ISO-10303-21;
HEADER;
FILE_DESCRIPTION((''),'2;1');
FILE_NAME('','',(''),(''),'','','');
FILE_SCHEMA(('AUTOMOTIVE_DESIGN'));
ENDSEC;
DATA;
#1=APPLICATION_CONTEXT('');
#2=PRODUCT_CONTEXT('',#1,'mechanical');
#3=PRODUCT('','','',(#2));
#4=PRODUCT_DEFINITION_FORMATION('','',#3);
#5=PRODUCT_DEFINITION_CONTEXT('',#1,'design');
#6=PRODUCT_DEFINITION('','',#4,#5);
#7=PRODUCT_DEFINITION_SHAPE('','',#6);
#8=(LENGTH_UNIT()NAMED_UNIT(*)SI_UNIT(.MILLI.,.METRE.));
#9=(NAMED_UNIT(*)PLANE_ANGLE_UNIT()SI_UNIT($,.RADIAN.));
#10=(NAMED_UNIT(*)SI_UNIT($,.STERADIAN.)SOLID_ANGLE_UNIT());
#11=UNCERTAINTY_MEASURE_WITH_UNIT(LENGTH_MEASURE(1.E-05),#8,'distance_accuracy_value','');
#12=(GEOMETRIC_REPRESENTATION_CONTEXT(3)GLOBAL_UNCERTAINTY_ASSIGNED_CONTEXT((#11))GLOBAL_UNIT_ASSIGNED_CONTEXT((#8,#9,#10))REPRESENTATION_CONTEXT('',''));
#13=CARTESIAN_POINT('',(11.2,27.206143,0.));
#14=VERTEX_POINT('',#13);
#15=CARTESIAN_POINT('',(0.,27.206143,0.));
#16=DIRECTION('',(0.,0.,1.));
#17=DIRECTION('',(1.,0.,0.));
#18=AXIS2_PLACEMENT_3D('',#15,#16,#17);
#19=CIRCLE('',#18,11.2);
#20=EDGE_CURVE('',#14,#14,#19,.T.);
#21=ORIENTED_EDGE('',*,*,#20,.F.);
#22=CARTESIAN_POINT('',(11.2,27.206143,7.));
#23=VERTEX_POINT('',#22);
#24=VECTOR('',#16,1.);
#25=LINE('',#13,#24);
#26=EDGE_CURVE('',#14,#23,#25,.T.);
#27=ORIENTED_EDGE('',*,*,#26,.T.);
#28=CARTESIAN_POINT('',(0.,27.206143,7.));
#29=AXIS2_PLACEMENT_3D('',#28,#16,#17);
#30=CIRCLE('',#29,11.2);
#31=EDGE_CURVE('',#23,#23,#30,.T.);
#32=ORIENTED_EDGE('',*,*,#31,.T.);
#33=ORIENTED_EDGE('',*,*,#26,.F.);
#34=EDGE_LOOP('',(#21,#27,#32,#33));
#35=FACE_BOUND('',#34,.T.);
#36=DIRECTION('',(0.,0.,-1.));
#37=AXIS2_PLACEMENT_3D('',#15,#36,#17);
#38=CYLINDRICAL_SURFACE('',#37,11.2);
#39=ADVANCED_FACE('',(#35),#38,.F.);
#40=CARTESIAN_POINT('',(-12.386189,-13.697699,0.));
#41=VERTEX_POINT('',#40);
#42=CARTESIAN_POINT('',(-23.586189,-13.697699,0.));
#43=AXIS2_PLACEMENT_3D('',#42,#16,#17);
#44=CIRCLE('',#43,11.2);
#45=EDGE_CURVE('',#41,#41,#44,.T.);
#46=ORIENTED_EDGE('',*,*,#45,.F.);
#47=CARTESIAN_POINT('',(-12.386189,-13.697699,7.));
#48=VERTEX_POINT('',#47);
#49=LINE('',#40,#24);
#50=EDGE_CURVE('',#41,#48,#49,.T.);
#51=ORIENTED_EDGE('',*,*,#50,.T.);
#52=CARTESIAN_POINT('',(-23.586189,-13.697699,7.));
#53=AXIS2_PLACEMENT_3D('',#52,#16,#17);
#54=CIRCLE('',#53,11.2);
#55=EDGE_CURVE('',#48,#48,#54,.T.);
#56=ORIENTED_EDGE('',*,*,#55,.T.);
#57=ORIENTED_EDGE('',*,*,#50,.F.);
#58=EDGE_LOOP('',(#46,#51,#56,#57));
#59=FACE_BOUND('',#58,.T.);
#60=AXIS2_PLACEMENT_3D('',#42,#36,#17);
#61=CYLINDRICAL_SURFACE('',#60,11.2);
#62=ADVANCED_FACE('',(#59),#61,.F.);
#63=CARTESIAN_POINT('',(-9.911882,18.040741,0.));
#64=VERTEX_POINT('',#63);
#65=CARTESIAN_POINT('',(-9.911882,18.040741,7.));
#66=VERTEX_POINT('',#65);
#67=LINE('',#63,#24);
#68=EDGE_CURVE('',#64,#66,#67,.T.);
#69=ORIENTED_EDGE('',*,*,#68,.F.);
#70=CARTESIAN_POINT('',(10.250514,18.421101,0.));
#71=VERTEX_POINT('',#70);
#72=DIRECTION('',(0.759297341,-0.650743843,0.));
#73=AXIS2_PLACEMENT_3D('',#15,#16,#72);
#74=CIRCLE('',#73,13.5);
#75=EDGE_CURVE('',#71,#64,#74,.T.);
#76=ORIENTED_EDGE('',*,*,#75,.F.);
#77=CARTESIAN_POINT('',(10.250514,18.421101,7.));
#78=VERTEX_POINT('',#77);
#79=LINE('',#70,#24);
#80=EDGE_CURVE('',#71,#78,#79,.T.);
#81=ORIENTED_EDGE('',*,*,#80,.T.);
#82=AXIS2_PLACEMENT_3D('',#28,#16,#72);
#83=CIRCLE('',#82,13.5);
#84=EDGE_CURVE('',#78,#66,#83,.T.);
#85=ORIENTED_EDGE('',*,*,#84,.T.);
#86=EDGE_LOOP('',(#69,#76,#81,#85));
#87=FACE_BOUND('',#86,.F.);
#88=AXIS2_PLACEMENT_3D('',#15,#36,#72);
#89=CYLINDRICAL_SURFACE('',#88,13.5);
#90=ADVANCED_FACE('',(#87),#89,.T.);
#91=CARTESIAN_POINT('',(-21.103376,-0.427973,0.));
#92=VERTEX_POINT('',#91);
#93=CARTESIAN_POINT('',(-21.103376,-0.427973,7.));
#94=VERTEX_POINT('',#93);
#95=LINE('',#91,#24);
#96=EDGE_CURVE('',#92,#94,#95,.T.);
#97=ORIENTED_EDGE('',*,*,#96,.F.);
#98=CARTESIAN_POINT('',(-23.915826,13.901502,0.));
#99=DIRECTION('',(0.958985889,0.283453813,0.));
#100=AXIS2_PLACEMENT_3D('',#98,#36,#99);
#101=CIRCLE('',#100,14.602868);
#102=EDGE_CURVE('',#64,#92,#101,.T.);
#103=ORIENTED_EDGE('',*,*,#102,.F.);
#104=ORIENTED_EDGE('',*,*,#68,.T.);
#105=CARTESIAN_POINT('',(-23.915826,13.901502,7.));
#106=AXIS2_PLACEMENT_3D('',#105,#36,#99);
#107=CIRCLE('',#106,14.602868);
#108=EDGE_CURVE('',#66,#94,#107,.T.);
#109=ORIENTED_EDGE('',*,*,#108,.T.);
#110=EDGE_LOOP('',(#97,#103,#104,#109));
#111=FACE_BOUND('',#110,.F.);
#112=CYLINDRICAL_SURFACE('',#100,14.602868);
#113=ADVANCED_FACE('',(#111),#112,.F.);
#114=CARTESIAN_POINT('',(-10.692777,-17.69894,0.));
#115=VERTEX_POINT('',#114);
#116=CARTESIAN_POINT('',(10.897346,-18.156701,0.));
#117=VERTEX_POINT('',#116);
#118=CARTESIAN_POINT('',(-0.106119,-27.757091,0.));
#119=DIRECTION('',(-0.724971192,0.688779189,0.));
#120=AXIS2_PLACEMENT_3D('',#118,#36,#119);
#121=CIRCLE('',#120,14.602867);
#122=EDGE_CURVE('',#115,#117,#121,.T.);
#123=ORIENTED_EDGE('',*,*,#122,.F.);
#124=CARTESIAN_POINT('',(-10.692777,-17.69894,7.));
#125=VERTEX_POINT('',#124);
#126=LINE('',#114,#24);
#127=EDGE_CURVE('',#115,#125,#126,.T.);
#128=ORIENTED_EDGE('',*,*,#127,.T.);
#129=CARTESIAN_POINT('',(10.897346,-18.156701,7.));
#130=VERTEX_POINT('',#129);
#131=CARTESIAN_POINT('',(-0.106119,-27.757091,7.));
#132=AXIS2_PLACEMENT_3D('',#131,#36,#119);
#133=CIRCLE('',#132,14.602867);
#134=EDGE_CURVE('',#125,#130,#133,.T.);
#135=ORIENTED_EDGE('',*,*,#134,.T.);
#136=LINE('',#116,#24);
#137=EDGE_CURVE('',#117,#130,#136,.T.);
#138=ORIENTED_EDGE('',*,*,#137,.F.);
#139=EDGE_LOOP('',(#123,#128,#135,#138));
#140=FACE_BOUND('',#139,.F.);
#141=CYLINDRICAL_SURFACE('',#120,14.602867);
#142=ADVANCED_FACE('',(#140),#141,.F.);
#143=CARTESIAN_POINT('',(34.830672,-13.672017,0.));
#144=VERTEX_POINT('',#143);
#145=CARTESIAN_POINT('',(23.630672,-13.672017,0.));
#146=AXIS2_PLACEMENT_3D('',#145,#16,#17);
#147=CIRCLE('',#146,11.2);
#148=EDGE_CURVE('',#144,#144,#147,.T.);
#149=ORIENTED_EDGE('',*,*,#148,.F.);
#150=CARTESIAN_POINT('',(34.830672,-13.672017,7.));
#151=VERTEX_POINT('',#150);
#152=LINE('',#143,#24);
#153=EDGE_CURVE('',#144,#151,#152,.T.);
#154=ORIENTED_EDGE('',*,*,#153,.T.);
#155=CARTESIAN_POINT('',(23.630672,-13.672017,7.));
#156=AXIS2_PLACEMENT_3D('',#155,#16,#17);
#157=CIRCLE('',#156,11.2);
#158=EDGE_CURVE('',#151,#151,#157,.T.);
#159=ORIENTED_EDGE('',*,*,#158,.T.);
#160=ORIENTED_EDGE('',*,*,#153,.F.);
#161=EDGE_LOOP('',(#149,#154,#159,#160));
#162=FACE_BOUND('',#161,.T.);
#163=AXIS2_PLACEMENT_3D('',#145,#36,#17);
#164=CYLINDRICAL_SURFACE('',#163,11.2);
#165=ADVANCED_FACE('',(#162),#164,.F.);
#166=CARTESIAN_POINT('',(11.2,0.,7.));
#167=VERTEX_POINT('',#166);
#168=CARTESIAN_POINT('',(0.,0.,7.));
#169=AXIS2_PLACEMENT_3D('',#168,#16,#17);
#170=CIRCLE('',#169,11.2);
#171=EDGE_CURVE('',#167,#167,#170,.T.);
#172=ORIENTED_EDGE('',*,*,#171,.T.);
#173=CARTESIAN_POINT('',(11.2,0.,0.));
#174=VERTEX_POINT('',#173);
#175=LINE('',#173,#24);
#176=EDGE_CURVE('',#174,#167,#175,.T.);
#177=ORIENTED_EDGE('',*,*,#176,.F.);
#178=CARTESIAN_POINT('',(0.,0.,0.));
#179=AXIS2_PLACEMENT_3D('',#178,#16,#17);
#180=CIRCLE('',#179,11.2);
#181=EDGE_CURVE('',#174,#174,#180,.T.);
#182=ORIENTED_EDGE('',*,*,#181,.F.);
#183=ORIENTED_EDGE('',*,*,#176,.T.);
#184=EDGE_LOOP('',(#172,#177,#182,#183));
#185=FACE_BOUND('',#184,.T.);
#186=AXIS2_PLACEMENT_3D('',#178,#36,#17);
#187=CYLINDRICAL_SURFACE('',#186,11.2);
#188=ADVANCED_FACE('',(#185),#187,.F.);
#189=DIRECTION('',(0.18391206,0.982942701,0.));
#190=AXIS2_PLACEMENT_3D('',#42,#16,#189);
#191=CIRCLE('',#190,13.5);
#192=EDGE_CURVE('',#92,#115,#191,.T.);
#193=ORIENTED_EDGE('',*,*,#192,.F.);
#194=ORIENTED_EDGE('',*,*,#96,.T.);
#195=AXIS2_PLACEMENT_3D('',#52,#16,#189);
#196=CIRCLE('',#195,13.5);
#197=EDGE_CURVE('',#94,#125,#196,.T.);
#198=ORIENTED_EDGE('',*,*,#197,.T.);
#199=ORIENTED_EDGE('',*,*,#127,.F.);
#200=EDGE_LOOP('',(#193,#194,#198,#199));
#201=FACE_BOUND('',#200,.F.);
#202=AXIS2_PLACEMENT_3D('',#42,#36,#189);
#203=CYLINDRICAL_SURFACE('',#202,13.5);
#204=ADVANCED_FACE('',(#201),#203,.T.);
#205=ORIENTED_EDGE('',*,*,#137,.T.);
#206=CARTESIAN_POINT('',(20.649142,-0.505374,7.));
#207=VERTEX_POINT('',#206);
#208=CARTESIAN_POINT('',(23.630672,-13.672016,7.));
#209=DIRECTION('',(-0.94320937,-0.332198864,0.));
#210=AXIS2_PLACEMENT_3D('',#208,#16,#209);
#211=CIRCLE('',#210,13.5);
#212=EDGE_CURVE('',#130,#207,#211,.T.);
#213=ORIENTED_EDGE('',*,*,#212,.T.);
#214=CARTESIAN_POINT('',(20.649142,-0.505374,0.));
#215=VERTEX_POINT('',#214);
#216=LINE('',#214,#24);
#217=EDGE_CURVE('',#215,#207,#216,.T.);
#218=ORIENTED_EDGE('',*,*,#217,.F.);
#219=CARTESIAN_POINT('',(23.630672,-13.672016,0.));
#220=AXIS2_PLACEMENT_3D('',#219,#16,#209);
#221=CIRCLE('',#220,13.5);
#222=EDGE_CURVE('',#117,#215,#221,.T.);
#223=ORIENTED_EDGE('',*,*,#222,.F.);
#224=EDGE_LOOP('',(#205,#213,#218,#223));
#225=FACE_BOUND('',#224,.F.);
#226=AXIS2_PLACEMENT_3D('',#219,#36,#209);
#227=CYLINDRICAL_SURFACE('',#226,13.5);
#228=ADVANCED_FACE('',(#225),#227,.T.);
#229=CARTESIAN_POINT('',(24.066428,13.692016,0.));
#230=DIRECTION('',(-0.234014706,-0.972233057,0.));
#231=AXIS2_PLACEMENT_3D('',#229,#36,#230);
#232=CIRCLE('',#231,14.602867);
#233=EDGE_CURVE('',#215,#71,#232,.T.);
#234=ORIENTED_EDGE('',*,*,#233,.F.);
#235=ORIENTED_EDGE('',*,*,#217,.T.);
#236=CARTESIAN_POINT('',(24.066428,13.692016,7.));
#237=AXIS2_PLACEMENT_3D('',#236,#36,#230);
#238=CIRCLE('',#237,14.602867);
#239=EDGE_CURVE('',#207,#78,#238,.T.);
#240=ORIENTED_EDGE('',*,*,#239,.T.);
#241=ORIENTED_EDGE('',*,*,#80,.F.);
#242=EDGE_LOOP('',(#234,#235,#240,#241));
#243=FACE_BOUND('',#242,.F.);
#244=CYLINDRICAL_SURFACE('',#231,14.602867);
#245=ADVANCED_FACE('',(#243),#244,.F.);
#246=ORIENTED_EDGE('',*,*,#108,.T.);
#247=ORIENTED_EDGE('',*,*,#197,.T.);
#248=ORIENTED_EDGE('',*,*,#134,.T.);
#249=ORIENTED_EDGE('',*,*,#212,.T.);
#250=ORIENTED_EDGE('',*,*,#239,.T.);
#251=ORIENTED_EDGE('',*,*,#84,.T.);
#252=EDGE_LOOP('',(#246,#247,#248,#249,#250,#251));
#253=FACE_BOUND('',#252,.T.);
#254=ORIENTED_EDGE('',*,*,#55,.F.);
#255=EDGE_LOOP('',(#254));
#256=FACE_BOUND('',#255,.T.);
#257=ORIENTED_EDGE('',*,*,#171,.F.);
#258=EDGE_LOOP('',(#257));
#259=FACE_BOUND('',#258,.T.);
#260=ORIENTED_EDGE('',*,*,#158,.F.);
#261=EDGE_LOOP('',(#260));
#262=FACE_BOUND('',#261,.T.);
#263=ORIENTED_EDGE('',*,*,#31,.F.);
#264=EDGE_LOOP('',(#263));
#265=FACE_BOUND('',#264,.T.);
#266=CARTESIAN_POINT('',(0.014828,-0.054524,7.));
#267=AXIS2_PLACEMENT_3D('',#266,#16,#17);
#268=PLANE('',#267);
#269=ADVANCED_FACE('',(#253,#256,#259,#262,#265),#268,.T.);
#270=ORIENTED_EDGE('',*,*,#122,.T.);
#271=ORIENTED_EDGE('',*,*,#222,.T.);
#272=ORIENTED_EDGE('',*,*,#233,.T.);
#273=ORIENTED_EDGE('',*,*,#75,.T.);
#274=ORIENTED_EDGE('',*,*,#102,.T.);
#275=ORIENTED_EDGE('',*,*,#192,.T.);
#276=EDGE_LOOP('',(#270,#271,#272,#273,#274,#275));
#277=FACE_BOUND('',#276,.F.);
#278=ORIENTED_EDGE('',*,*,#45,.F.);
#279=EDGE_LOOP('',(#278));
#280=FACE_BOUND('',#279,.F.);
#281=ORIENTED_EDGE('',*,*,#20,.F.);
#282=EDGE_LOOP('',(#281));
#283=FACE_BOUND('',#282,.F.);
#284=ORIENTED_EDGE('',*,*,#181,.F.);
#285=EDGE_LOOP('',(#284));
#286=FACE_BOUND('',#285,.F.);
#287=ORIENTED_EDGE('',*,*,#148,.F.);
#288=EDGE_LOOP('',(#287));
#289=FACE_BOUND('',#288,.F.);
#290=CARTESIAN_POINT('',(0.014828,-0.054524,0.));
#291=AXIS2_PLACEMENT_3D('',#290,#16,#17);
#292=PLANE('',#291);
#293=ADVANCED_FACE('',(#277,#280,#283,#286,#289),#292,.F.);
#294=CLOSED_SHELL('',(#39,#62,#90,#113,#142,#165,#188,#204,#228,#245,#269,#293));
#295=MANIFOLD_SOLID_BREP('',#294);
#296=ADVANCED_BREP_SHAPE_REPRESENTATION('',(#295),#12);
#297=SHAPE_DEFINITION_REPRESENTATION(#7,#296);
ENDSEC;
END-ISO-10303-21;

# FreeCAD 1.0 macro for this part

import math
import FreeCAD as App
import Part
import Sketcher
Q = App.Units.Quantity

doc = App.newDocument("Part")
body = doc.addObject("PartDesign::Body", "Body")

# Sketch on XY plane
sketch1 = body.newObject("Sketcher::SketchObject", "Sketch")
sketch1.AttachmentSupport = (doc.getObject("XY_Plane"), [""])
sketch1.MapMode = "FlatFace"
sketch1.addGeometry([
    Part.ArcOfCircle(Part.Circle(App.Vector(24, 14, 0), App.Vector(0, 0, 1), 15), math.radians(161), math.radians(256)),  # 0
    Part.ArcOfCircle(Part.Circle(App.Vector(0, 27, 0), App.Vector(0, 0, 1), 13), math.radians(-41), math.radians(223)),  # 1
    Part.ArcOfCircle(Part.Circle(App.Vector(-24, 14, 0), App.Vector(0, 0, 1), 15), math.radians(-79), math.radians(16)),  # 2
    Part.ArcOfCircle(Part.Circle(App.Vector(-24, -14, 0), App.Vector(0, 0, 1), 13), math.radians(79), math.radians(343)),  # 3
    Part.ArcOfCircle(Part.Circle(App.Vector(0, -28, 0), App.Vector(0, 0, 1), 15), math.radians(41), math.radians(136)),  # 4
    Part.ArcOfCircle(Part.Circle(App.Vector(24, -14, 0), App.Vector(0, 0, 1), 13), math.radians(-161), math.radians(103)),  # 5
    Part.Circle(App.Vector(-24, -14, 0), App.Vector(0, 0, 1), 11),  # 6
    Part.Circle(App.Vector(0, 0, 0), App.Vector(0, 0, 1), 11),  # 7
    Part.Circle(App.Vector(24, -14, 0), App.Vector(0, 0, 1), 11),  # 8
    Part.Circle(App.Vector(0, 27, 0), App.Vector(0, 0, 1), 11),  # 9
], False)
sketch1.addConstraint([
    Sketcher.Constraint("Coincident", 0, 1, 1, 1),
    Sketcher.Constraint("Coincident", 1, 2, 2, 2),
    Sketcher.Constraint("Coincident", 2, 1, 3, 1),
    Sketcher.Constraint("Coincident", 3, 2, 4, 2),
    Sketcher.Constraint("Coincident", 4, 1, 5, 1),
    Sketcher.Constraint("Coincident", 5, 2, 0, 2),
    Sketcher.Constraint("Coincident", 7, 3, -1, 1),
    Sketcher.Constraint("Coincident", 6, 3, 3, 3),
    Sketcher.Constraint("Coincident", 8, 3, 5, 3),
    Sketcher.Constraint("Coincident", 9, 3, 1, 3),
    Sketcher.Constraint("Equal", 0, 2),
    Sketcher.Constraint("Equal", 1, 3),
    Sketcher.Constraint("Equal", 2, 4),
    Sketcher.Constraint("Equal", 3, 5),
    Sketcher.Constraint("Equal", 6, 7),
    Sketcher.Constraint("Equal", 7, 8),
    Sketcher.Constraint("Equal", 8, 9),
    Sketcher.Constraint("PointOnObject", 1, 3, -2),
    Sketcher.Constraint("Diameter", 6, Q("22.4 mm")),
    Sketcher.Constraint("Radius", 1, Q("13.5 mm")),
    Sketcher.Constraint("Radius", 0, Q("14.602867 mm")),
    Sketcher.Constraint("DistanceY", 3, 3, -1, 1, Q("13.697699 mm")),
    Sketcher.Constraint("DistanceY", -1, 1, 0, 1, Q("18.421101 mm")),
    Sketcher.Constraint("DistanceY", 4, 1, -1, 1, Q("18.156701 mm")),
    Sketcher.Constraint("DistanceY", 3, 3, 2, 3, Q("27.599202 mm")),
    Sketcher.Constraint("DistanceX", 2, 3, 5, 3, Q("47.546498 mm")),
    Sketcher.Constraint("DistanceY", 1, 2, 1, 3, Q("9.165402 mm")),
    Sketcher.Constraint("DistanceX", 2, 1, 3, 2, Q("10.410599 mm")),
    Sketcher.Constraint("DistanceX", 3, 3, -1, 1, Q("23.586189 mm")),
    Sketcher.Constraint("DistanceX", 4, 3, -1, 1, Q("0.106119 mm")),
    Sketcher.Constraint("DistanceY", 4, 3, -1, 1, Q("27.757091 mm")),
    Sketcher.Constraint("DistanceX", 5, 2, 5, 3, Q("2.98153 mm")),
])
pad1 = body.newObject("PartDesign::Pad", "Pad")
pad1.Profile = sketch1
pad1.Length = 7

doc.recompute()
